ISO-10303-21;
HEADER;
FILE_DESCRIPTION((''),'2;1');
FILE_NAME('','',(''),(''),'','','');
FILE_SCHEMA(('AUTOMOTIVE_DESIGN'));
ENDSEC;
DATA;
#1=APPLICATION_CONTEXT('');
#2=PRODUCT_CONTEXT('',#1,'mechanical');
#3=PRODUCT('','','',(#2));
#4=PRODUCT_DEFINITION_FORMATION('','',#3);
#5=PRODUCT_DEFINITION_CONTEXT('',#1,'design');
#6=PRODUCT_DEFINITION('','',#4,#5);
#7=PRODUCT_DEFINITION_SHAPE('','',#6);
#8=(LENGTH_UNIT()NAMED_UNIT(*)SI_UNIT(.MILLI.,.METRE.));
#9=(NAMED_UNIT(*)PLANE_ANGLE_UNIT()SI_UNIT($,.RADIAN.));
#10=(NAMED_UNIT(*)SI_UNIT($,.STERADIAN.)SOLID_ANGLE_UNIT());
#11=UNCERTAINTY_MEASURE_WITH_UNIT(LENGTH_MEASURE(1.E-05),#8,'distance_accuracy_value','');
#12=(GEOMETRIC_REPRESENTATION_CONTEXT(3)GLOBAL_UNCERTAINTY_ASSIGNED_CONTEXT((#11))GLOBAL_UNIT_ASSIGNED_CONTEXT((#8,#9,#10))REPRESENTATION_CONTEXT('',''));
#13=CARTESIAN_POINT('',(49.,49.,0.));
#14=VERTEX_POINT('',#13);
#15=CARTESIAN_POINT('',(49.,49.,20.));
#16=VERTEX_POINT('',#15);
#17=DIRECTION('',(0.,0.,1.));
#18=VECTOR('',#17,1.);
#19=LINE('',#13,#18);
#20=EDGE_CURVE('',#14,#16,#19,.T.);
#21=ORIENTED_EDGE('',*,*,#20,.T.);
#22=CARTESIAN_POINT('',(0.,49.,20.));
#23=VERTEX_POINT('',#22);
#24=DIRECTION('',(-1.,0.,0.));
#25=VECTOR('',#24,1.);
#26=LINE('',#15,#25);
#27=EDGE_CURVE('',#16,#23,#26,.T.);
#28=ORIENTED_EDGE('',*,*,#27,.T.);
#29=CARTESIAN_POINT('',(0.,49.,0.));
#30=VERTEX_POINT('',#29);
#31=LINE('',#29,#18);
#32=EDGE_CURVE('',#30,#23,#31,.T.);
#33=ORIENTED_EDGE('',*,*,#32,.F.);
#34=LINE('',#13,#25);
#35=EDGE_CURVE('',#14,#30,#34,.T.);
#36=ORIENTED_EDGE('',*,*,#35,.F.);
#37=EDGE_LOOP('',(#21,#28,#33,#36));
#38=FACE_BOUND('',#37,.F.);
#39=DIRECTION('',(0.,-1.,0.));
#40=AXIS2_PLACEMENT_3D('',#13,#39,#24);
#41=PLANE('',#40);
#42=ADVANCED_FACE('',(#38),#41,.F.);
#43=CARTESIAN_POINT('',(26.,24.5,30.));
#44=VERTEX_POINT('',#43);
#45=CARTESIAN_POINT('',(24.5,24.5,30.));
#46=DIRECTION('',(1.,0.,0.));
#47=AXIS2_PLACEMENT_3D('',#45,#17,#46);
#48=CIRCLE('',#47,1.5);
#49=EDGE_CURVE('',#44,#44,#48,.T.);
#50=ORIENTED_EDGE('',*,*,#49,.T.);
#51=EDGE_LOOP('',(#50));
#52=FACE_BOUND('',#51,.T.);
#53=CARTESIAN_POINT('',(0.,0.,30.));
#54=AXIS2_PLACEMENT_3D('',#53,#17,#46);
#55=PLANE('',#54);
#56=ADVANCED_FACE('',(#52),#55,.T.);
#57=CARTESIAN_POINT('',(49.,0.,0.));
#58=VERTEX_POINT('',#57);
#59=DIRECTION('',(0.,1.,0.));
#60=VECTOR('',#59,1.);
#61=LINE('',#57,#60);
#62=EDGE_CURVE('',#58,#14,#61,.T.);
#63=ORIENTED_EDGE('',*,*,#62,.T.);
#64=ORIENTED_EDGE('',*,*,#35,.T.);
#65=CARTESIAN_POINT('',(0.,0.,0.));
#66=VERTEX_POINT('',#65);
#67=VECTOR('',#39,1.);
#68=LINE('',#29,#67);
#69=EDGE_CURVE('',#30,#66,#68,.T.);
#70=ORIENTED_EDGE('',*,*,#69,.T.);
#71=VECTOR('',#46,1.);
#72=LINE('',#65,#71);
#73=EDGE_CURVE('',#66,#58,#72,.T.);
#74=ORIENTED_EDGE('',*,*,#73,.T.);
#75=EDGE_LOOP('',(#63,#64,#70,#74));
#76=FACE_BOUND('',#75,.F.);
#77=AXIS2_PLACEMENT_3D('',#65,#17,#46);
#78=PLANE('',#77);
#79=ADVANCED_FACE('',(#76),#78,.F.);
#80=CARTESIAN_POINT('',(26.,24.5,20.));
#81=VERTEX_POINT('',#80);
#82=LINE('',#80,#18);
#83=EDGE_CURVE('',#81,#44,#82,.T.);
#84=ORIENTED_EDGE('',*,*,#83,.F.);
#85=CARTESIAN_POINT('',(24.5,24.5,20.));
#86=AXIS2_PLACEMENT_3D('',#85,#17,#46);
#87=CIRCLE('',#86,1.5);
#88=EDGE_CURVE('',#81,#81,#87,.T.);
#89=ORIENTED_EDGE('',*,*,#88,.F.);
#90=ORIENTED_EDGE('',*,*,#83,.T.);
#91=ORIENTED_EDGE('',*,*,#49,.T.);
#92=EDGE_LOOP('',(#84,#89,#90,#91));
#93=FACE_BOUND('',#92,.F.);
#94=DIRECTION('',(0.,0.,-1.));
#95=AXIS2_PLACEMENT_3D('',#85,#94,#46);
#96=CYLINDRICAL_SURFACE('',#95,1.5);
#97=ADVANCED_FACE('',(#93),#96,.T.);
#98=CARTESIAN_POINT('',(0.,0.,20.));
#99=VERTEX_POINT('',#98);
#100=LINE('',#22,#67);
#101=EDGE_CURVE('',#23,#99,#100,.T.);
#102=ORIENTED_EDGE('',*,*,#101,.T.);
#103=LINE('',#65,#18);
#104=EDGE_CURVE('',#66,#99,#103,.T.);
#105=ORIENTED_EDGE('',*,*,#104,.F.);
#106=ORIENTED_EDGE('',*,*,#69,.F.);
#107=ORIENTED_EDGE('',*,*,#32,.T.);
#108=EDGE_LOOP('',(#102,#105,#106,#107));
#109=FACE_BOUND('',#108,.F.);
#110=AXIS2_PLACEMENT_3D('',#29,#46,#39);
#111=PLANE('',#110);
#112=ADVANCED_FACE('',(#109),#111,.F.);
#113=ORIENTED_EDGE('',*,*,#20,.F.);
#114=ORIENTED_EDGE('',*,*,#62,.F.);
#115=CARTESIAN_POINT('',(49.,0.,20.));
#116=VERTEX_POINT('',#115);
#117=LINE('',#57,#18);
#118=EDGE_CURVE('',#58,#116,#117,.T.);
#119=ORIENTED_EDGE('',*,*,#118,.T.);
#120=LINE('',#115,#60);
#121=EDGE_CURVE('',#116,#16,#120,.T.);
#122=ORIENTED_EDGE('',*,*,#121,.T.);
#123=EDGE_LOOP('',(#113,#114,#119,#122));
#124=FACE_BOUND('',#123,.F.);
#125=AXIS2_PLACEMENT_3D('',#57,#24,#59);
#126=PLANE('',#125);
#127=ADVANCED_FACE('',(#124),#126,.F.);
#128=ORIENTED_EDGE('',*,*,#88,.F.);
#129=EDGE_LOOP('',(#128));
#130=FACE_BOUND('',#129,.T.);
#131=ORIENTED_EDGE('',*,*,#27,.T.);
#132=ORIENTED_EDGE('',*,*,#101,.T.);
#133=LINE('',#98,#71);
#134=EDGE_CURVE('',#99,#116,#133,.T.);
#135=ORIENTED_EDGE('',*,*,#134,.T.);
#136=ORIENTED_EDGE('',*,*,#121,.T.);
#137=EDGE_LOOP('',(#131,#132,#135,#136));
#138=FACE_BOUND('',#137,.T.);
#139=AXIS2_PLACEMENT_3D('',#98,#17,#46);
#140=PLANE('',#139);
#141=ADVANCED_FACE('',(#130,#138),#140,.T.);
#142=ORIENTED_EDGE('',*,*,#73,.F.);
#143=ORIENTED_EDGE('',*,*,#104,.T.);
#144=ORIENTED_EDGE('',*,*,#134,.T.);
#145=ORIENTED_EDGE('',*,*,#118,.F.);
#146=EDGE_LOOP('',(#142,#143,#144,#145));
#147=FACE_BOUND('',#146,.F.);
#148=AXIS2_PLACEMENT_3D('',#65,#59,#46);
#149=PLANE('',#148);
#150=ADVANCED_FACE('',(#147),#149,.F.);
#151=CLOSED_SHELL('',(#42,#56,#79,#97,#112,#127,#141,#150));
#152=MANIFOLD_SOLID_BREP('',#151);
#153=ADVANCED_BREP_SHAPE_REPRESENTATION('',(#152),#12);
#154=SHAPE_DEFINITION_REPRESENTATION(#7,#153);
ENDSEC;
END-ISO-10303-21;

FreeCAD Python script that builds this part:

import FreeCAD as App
import Part
import Sketcher

V = App.Vector


def add_polygon(sketch, points):
    """Adds a closed chain of lines whose ends are joined by coincident constraints."""
    first, n = sketch.GeometryCount, len(points)
    for a, b in zip(points, points[1:] + points[:1]):
        sketch.addGeometry(Part.LineSegment(App.Vector(*a, 0), App.Vector(*b, 0)), False)
    for i in range(n):
        sketch.addConstraint(Sketcher.Constraint("Coincident", first + i, 2, first + (i + 1) % n, 1))

doc = App.newDocument("Part")
body = doc.addObject("PartDesign::Body", "Body")

# Sketch on XY plane
sketch1 = body.newObject("Sketcher::SketchObject", "Sketch")
sketch1.AttachmentSupport = (doc.getObject("XY_Plane"), [""])
sketch1.MapMode = "FlatFace"
add_polygon(sketch1, [(0, 49), (0, 0), (49, 0), (49, 49)])  # lines 0-3
sketch1.addConstraint([
    Sketcher.Constraint("Vertical", 0),
    Sketcher.Constraint("Horizontal", 1),
    Sketcher.Constraint("Vertical", 2),
    Sketcher.Constraint("Horizontal", 3),
    Sketcher.Constraint("Coincident", 0, 2, -1, 1),
    Sketcher.Constraint("Equal", 3, 0),
    Sketcher.Constraint("DistanceX", 1, 1, 1, 2, 49.0),
])
pad1 = body.newObject("PartDesign::Pad", "Pad")
pad1.Profile = sketch1
pad1.Length = 20

# Sketch on XY plane
sketch2 = body.newObject("Sketcher::SketchObject", "Sketch001")
sketch2.AttachmentSupport = (doc.getObject("XY_Plane"), [""])
sketch2.MapMode = "FlatFace"
sketch2.AttachmentOffset = App.Placement(V(0, 0, 20), App.Rotation())
sketch2.addGeometry(Part.Circle(V(24.5, 24.5, 0), V(0, 0, 1), 1.5), False)
sketch2.addConstraint([
    Sketcher.Constraint("Diameter", 0, 3.0),
    Sketcher.Constraint("DistanceX", -1, 1, 0, 3, 24.5),
    Sketcher.Constraint("DistanceY", -1, 1, 0, 3, 24.5),
])
pad2 = body.newObject("PartDesign::Pad", "Pad001")
pad2.Profile = sketch2
pad2.Length = 10

doc.recompute()
